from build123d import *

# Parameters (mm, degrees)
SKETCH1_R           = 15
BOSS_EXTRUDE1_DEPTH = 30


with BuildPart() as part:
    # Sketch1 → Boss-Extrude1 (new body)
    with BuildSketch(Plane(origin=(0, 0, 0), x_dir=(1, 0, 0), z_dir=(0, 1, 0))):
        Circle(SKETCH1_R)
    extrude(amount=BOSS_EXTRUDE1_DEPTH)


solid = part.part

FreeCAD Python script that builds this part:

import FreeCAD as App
import Part
import Sketcher

V = App.Vector

doc = App.newDocument("Part")
body = doc.addObject("PartDesign::Body", "Body")

# Sketch on XZ plane
sketch1 = doc.addObject("Sketcher::SketchObject", "Sketch")
body.addObject(sketch1)
sketch1.AttachmentSupport = (doc.XZ_Plane, [""])
sketch1.MapMode = "FlatFace"
sketch1.addGeometry(Part.Circle(V(0, 0, 0), V(0, 0, 1), 15), False)
sketch1.addConstraint(Sketcher.Constraint("Coincident", 0, 3, -1, 1))
sketch1.addConstraint(Sketcher.Constraint("Diameter", 0, 30.0))
pad1 = doc.addObject("PartDesign::Pad", "Pad")
body.addObject(pad1)
pad1.Profile = sketch1
pad1.Length = 30
pad1.Reversed = True

doc.recompute()
